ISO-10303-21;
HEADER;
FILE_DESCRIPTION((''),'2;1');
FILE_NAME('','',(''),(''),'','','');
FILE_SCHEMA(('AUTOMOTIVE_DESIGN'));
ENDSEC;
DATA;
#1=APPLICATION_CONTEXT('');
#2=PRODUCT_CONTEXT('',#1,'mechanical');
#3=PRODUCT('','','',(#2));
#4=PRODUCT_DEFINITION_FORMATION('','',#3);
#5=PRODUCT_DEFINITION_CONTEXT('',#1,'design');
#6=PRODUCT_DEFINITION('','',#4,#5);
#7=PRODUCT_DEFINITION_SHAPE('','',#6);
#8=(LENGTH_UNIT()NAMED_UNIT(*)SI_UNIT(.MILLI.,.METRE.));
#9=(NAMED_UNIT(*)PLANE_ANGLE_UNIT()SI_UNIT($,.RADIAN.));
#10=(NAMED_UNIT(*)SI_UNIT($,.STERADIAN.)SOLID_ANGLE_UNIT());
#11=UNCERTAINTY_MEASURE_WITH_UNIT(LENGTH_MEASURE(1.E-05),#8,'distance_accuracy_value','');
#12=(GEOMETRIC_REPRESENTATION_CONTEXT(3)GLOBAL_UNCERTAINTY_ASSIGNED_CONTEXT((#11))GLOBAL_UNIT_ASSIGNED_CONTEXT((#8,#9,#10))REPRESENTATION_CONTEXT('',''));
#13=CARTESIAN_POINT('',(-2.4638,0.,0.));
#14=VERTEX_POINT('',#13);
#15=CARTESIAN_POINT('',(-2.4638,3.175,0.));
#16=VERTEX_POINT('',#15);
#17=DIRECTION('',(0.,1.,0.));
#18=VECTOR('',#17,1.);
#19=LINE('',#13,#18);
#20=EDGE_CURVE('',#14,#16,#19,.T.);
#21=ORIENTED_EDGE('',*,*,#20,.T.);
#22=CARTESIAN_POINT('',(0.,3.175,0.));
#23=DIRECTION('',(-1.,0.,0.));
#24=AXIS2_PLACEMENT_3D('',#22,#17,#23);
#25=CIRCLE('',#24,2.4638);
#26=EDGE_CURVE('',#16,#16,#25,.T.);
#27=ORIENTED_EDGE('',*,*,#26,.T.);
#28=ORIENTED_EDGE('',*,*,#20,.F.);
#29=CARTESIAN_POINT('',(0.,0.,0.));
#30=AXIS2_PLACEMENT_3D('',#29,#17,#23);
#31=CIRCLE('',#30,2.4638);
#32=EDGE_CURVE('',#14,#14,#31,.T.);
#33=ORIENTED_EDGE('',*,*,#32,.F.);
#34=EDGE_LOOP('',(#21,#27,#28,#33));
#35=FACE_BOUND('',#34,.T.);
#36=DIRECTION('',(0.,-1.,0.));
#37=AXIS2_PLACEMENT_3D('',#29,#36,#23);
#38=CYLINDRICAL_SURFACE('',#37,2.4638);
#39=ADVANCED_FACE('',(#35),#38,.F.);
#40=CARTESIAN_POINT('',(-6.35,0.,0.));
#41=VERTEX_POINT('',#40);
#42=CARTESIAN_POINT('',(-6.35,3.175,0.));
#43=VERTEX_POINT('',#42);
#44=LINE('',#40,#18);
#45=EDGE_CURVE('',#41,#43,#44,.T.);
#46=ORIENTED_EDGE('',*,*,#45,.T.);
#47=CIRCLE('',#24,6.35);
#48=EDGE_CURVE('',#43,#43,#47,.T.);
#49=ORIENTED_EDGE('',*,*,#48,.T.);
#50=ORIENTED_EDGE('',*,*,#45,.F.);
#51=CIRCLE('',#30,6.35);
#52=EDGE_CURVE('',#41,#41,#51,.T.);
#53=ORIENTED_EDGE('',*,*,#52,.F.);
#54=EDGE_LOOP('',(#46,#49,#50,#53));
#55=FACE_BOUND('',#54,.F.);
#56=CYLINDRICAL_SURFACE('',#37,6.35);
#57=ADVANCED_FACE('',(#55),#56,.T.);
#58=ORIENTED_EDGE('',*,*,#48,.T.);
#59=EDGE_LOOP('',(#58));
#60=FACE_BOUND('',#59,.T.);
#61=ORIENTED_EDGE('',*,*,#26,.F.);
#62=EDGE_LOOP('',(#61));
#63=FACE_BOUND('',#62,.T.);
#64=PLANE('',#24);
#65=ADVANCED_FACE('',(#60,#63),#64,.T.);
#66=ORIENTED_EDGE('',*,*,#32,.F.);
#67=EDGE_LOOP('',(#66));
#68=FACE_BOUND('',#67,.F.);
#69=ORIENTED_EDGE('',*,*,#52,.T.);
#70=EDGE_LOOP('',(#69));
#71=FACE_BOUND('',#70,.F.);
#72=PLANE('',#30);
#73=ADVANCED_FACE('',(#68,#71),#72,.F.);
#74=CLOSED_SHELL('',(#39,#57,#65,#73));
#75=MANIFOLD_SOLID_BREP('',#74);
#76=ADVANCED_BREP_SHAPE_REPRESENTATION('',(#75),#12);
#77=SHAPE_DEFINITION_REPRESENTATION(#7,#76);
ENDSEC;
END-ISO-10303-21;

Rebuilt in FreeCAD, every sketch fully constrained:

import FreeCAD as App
import Part
import Sketcher

V = App.Vector
Q = App.Units.Quantity

doc = App.newDocument("Part")
body = doc.addObject("PartDesign::Body", "Body")

# Sketch on XZ plane
sketch1 = doc.addObject("Sketcher::SketchObject", "Sketch")
body.addObject(sketch1)
sketch1.AttachmentSupport = (doc.XZ_Plane, [""])
sketch1.MapMode = "FlatFace"
sketch1.addGeometry(Part.Circle(V(0, 0, 0), V(0, 0, 1), 6.3), False)
sketch1.addGeometry(Part.Circle(V(0, 0, 0), V(0, 0, 1), 2.5), False)
sketch1.addConstraint(Sketcher.Constraint("Coincident", 0, 3, -1, 1))
sketch1.addConstraint(Sketcher.Constraint("Coincident", 1, 3, -1, 1))
sketch1.addConstraint(Sketcher.Constraint("Diameter", 0, Q("0.5 in")))
sketch1.addConstraint(Sketcher.Constraint("Diameter", 1, Q("0.194 in")))
pad1 = doc.addObject("PartDesign::Pad", "Pad")
body.addObject(pad1)
pad1.Profile = sketch1
pad1.Length = Q("0.125 in")
pad1.Reversed = True

doc.recompute()
